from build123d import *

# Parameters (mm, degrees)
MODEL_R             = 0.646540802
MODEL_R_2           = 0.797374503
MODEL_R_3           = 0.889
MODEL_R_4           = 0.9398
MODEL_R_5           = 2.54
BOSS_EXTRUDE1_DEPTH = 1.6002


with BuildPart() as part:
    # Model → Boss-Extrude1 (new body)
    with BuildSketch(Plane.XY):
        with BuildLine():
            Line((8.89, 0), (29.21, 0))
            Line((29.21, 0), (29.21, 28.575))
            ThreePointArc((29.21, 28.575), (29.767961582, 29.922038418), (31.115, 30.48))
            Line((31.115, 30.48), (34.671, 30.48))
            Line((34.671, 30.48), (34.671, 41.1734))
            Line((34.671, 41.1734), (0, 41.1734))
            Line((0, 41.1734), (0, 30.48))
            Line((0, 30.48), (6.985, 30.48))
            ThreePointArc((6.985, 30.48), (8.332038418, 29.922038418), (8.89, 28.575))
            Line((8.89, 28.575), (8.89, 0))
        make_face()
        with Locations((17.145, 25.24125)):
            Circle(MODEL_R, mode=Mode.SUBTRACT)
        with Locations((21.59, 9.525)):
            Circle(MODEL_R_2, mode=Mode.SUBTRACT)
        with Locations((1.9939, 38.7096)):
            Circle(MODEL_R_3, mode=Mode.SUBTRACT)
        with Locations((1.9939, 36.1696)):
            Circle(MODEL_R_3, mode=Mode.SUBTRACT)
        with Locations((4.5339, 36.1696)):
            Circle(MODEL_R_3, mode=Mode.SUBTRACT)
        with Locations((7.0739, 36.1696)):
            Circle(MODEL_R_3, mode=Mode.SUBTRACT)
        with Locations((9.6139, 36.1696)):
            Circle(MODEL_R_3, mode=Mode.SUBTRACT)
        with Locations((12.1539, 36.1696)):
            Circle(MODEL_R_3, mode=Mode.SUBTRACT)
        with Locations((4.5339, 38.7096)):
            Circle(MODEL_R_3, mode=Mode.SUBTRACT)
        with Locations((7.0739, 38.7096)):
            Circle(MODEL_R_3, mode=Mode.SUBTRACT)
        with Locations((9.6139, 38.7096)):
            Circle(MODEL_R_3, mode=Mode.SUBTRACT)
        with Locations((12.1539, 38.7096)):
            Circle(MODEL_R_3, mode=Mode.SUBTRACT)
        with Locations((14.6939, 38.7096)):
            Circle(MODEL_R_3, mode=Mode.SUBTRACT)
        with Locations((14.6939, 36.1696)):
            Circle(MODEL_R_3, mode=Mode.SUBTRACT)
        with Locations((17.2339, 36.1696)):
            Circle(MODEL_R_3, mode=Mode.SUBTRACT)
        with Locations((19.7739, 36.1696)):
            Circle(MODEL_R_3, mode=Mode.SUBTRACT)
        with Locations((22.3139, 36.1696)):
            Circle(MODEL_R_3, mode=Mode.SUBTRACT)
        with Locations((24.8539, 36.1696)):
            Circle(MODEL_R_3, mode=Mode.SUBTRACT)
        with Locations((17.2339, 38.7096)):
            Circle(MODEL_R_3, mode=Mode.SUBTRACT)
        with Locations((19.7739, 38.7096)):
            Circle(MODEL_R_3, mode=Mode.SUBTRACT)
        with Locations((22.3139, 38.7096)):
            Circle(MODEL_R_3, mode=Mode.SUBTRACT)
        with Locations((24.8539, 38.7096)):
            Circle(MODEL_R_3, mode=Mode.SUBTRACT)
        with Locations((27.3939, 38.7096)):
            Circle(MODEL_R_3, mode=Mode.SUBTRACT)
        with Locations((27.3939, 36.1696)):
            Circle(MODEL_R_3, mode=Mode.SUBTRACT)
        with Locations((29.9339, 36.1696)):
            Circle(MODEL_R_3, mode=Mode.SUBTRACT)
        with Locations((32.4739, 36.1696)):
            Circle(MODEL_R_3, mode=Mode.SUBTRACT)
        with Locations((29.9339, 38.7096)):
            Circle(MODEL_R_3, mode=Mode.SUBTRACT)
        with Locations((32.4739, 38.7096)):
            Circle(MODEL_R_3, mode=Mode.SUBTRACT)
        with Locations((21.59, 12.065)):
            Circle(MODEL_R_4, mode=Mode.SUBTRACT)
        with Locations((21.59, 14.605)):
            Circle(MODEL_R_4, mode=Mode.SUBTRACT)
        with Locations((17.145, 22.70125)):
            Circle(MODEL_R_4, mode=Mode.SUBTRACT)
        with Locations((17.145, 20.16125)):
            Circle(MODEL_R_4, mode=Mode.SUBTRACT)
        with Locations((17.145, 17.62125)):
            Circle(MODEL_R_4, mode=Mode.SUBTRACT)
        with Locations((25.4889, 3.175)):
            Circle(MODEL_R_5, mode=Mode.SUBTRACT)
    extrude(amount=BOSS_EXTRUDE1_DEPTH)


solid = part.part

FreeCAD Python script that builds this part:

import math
import FreeCAD as App
import Part
import Sketcher

V = App.Vector
Q = App.Units.Quantity

doc = App.newDocument("Part")
params = doc.addObject("Spreadsheet::Sheet", "Params")
for row, (alias, value) in enumerate([
    ("sketch1_diameter", "0.2 in"),
    ("sketch1_diameter2", "0.07 in"),
    ("sketch1_diameter3", "0.074 in"),
    ("sketch1_width", "0.8 in"),
    ("sketch1_radius", "0.075 in"),
    ("pad1_length", "0.063 in"),
], start=1):
    params.set(f"A{row}", alias)
    params.set(f"B{row}", "=" + value)
    params.setAlias(f"B{row}", alias)

body = doc.addObject("PartDesign::Body", "Body")

# Sketch on XY plane
sketch1 = doc.addObject("Sketcher::SketchObject", "Sketch")
body.addObject(sketch1)
sketch1.AttachmentSupport = (doc.XY_Plane, [""])
sketch1.MapMode = "FlatFace"
sketch1.addGeometry(Part.LineSegment(V(8.9, 0, 0), V(29.2, 0, 0)), False)
sketch1.addGeometry(Part.LineSegment(V(29.2, 0, 0), V(29.2, 28.6, 0)), False)
sketch1.addGeometry(Part.ArcOfCircle(Part.Circle(V(31.1, 28.6, 0), V(0, 0, 1), 1.9), math.radians(90), math.radians(180)), False)
sketch1.addGeometry(Part.LineSegment(V(31.1, 30.5, 0), V(34.7, 30.5, 0)), False)
sketch1.addGeometry(Part.LineSegment(V(34.7, 30.5, 0), V(34.7, 41.2, 0)), False)
sketch1.addGeometry(Part.LineSegment(V(34.7, 41.2, 0), V(0, 41.2, 0)), False)
sketch1.addGeometry(Part.LineSegment(V(0, 41.2, 0), V(0, 30.5, 0)), False)
sketch1.addGeometry(Part.LineSegment(V(0, 30.5, 0), V(7, 30.5, 0)), False)
sketch1.addGeometry(Part.ArcOfCircle(Part.Circle(V(7, 28.6, 0), V(0, 0, 1), 1.9), math.radians(0), math.radians(90)), False)
sketch1.addGeometry(Part.LineSegment(V(8.9, 28.6, 0), V(8.9, 0, 0)), False)
sketch1.addGeometry(Part.Circle(V(17.1, 17.6, 0), V(0, 0, 1), 0.9), False)
sketch1.addGeometry(Part.Circle(V(21.6, 9.5, 0), V(0, 0, 1), 0.8), False)
sketch1.addGeometry(Part.Circle(V(25.5, 3.2, 0), V(0, 0, 1), 2.5), False)
sketch1.addGeometry(Part.Circle(V(21.6, 12.1, 0), V(0, 0, 1), 0.9), False)
sketch1.addGeometry(Part.Circle(V(21.6, 14.6, 0), V(0, 0, 1), 0.9), False)
sketch1.addGeometry(Part.Circle(V(17.1, 20.2, 0), V(0, 0, 1), 0.9), False)
sketch1.addGeometry(Part.Circle(V(17.1, 22.7, 0), V(0, 0, 1), 0.9), False)
sketch1.addGeometry(Part.Circle(V(17.1, 25.2, 0), V(0, 0, 1), 0.6), False)
sketch1.addGeometry(Part.Circle(V(2, 36.2, 0), V(0, 0, 1), 0.9), False)
sketch1.addGeometry(Part.Circle(V(4.5, 36.2, 0), V(0, 0, 1), 0.9), False)
sketch1.addGeometry(Part.Circle(V(2, 38.7, 0), V(0, 0, 1), 0.9), False)
sketch1.addGeometry(Part.Circle(V(4.5, 38.7, 0), V(0, 0, 1), 0.9), False)
sketch1.addGeometry(Part.Circle(V(7.1, 36.2, 0), V(0, 0, 1), 0.9), False)
sketch1.addGeometry(Part.Circle(V(7.1, 38.7, 0), V(0, 0, 1), 0.9), False)
sketch1.addGeometry(Part.Circle(V(9.6, 36.2, 0), V(0, 0, 1), 0.9), False)
sketch1.addGeometry(Part.Circle(V(12.2, 36.2, 0), V(0, 0, 1), 0.9), False)
sketch1.addGeometry(Part.Circle(V(9.6, 38.7, 0), V(0, 0, 1), 0.9), False)
sketch1.addGeometry(Part.Circle(V(12.2, 38.7, 0), V(0, 0, 1), 0.9), False)
sketch1.addGeometry(Part.Circle(V(14.7, 36.2, 0), V(0, 0, 1), 0.9), False)
sketch1.addGeometry(Part.Circle(V(17.2, 36.2, 0), V(0, 0, 1), 0.9), False)
sketch1.addGeometry(Part.Circle(V(14.7, 38.7, 0), V(0, 0, 1), 0.9), False)
sketch1.addGeometry(Part.Circle(V(17.2, 38.7, 0), V(0, 0, 1), 0.9), False)
sketch1.addGeometry(Part.Circle(V(19.8, 36.2, 0), V(0, 0, 1), 0.9), False)
sketch1.addGeometry(Part.Circle(V(19.8, 38.7, 0), V(0, 0, 1), 0.9), False)
sketch1.addGeometry(Part.Circle(V(22.3, 36.2, 0), V(0, 0, 1), 0.9), False)
sketch1.addGeometry(Part.Circle(V(24.9, 36.2, 0), V(0, 0, 1), 0.9), False)
sketch1.addGeometry(Part.Circle(V(22.3, 38.7, 0), V(0, 0, 1), 0.9), False)
sketch1.addGeometry(Part.Circle(V(24.9, 38.7, 0), V(0, 0, 1), 0.9), False)
sketch1.addGeometry(Part.Circle(V(27.4, 36.2, 0), V(0, 0, 1), 0.9), False)
sketch1.addGeometry(Part.Circle(V(27.4, 38.7, 0), V(0, 0, 1), 0.9), False)
sketch1.addGeometry(Part.Circle(V(29.9, 36.2, 0), V(0, 0, 1), 0.9), False)
sketch1.addGeometry(Part.Circle(V(32.5, 36.2, 0), V(0, 0, 1), 0.9), False)
sketch1.addGeometry(Part.Circle(V(29.9, 38.7, 0), V(0, 0, 1), 0.9), False)
sketch1.addGeometry(Part.Circle(V(32.5, 38.7, 0), V(0, 0, 1), 0.9), False)
sketch1.addConstraint(Sketcher.Constraint("Coincident", 0, 2, 1, 1))
sketch1.addConstraint(Sketcher.Constraint("Tangent", 1, 2, 2, 2))
sketch1.addConstraint(Sketcher.Constraint("Tangent", 2, 1, 3, 1))
sketch1.addConstraint(Sketcher.Constraint("Coincident", 3, 2, 4, 1))
sketch1.addConstraint(Sketcher.Constraint("Coincident", 4, 2, 5, 1))
sketch1.addConstraint(Sketcher.Constraint("Coincident", 5, 2, 6, 1))
sketch1.addConstraint(Sketcher.Constraint("Coincident", 6, 2, 7, 1))
sketch1.addConstraint(Sketcher.Constraint("Tangent", 7, 2, 8, 2))
sketch1.addConstraint(Sketcher.Constraint("Tangent", 8, 1, 9, 1))
sketch1.addConstraint(Sketcher.Constraint("Coincident", 9, 2, 0, 1))
sketch1.addConstraint(Sketcher.Constraint("Horizontal", 0))
sketch1.addConstraint(Sketcher.Constraint("Vertical", 1))
sketch1.addConstraint(Sketcher.Constraint("Horizontal", 3))
sketch1.addConstraint(Sketcher.Constraint("Vertical", 4))
sketch1.addConstraint(Sketcher.Constraint("Horizontal", 5))
sketch1.addConstraint(Sketcher.Constraint("Vertical", 6))
sketch1.addConstraint(Sketcher.Constraint("Horizontal", 7))
sketch1.addConstraint(Sketcher.Constraint("Vertical", 9))
sketch1.addConstraint(Sketcher.Constraint("Equal", 2, 8))
sketch1.addConstraint(Sketcher.Constraint("Equal", 10, 13))
sketch1.addConstraint(Sketcher.Constraint("Equal", 13, 14))
sketch1.addConstraint(Sketcher.Constraint("Equal", 14, 15))
sketch1.addConstraint(Sketcher.Constraint("Equal", 15, 16))
sketch1.addConstraint(Sketcher.Constraint("Equal", 18, 19))
sketch1.addConstraint(Sketcher.Constraint("Equal", 19, 20))
sketch1.addConstraint(Sketcher.Constraint("Equal", 20, 21))
sketch1.addConstraint(Sketcher.Constraint("Equal", 21, 22))
sketch1.addConstraint(Sketcher.Constraint("Equal", 22, 23))
sketch1.addConstraint(Sketcher.Constraint("Equal", 23, 24))
sketch1.addConstraint(Sketcher.Constraint("Equal", 24, 25))
sketch1.addConstraint(Sketcher.Constraint("Equal", 25, 26))
sketch1.addConstraint(Sketcher.Constraint("Equal", 26, 27))
sketch1.addConstraint(Sketcher.Constraint("Equal", 27, 28))
sketch1.addConstraint(Sketcher.Constraint("Equal", 28, 29))
sketch1.addConstraint(Sketcher.Constraint("Equal", 29, 30))
sketch1.addConstraint(Sketcher.Constraint("Equal", 30, 31))
sketch1.addConstraint(Sketcher.Constraint("Equal", 31, 32))
sketch1.addConstraint(Sketcher.Constraint("Equal", 32, 33))
sketch1.addConstraint(Sketcher.Constraint("Equal", 33, 34))
sketch1.addConstraint(Sketcher.Constraint("Equal", 34, 35))
sketch1.addConstraint(Sketcher.Constraint("Equal", 35, 36))
sketch1.addConstraint(Sketcher.Constraint("Equal", 36, 37))
sketch1.addConstraint(Sketcher.Constraint("Equal", 37, 38))
sketch1.addConstraint(Sketcher.Constraint("Equal", 38, 39))
sketch1.addConstraint(Sketcher.Constraint("Equal", 39, 40))
sketch1.addConstraint(Sketcher.Constraint("Equal", 40, 41))
sketch1.addConstraint(Sketcher.Constraint("Equal", 41, 42))
sketch1.addConstraint(Sketcher.Constraint("Equal", 42, 43))
sketch1.addConstraint(Sketcher.Constraint("PointOnObject", 0, 2, -1))
sketch1.addConstraint(Sketcher.Constraint("PointOnObject", 5, 2, -2))
sketch1.addConstraint(Sketcher.Constraint("Horizontal", 2, 3, 8, 3))
sketch1.addConstraint(Sketcher.Constraint("Horizontal", 18, 3, 19, 3))
sketch1.addConstraint(Sketcher.Constraint("Horizontal", 20, 3, 21, 3))
sketch1.addConstraint(Sketcher.Constraint("Horizontal", 19, 3, 22, 3))
sketch1.addConstraint(Sketcher.Constraint("Horizontal", 21, 3, 23, 3))
sketch1.addConstraint(Sketcher.Constraint("Horizontal", 22, 3, 24, 3))
sketch1.addConstraint(Sketcher.Constraint("Horizontal", 24, 3, 25, 3))
sketch1.addConstraint(Sketcher.Constraint("Horizontal", 23, 3, 26, 3))
sketch1.addConstraint(Sketcher.Constraint("Horizontal", 26, 3, 27, 3))
sketch1.addConstraint(Sketcher.Constraint("Horizontal", 25, 3, 28, 3))
sketch1.addConstraint(Sketcher.Constraint("Horizontal", 28, 3, 29, 3))
sketch1.addConstraint(Sketcher.Constraint("Horizontal", 27, 3, 30, 3))
sketch1.addConstraint(Sketcher.Constraint("Horizontal", 30, 3, 31, 3))
sketch1.addConstraint(Sketcher.Constraint("Horizontal", 29, 3, 32, 3))
sketch1.addConstraint(Sketcher.Constraint("Horizontal", 31, 3, 33, 3))
sketch1.addConstraint(Sketcher.Constraint("Horizontal", 32, 3, 34, 3))
sketch1.addConstraint(Sketcher.Constraint("Horizontal", 34, 3, 35, 3))
sketch1.addConstraint(Sketcher.Constraint("Horizontal", 33, 3, 36, 3))
sketch1.addConstraint(Sketcher.Constraint("Horizontal", 36, 3, 37, 3))
sketch1.addConstraint(Sketcher.Constraint("Horizontal", 35, 3, 38, 3))
sketch1.addConstraint(Sketcher.Constraint("Horizontal", 37, 3, 39, 3))
sketch1.addConstraint(Sketcher.Constraint("Horizontal", 38, 3, 40, 3))
sketch1.addConstraint(Sketcher.Constraint("Horizontal", 40, 3, 41, 3))
sketch1.addConstraint(Sketcher.Constraint("Horizontal", 39, 3, 42, 3))
sketch1.addConstraint(Sketcher.Constraint("Horizontal", 42, 3, 43, 3))
sketch1.addConstraint(Sketcher.Constraint("Vertical", 11, 3, 13, 3))
sketch1.addConstraint(Sketcher.Constraint("Vertical", 13, 3, 14, 3))
sketch1.addConstraint(Sketcher.Constraint("Vertical", 10, 3, 15, 3))
sketch1.addConstraint(Sketcher.Constraint("Vertical", 15, 3, 16, 3))
sketch1.addConstraint(Sketcher.Constraint("Vertical", 16, 3, 17, 3))
sketch1.addConstraint(Sketcher.Constraint("Vertical", 18, 3, 20, 3))
sketch1.addConstraint(Sketcher.Constraint("Vertical", 19, 3, 21, 3))
sketch1.addConstraint(Sketcher.Constraint("Vertical", 22, 3, 23, 3))
sketch1.addConstraint(Sketcher.Constraint("Vertical", 24, 3, 26, 3))
sketch1.addConstraint(Sketcher.Constraint("Vertical", 25, 3, 27, 3))
sketch1.addConstraint(Sketcher.Constraint("Vertical", 28, 3, 30, 3))
sketch1.addConstraint(Sketcher.Constraint("Vertical", 29, 3, 31, 3))
sketch1.addConstraint(Sketcher.Constraint("Vertical", 32, 3, 33, 3))
sketch1.addConstraint(Sketcher.Constraint("Vertical", 34, 3, 36, 3))
sketch1.addConstraint(Sketcher.Constraint("Vertical", 35, 3, 37, 3))
sketch1.addConstraint(Sketcher.Constraint("Vertical", 38, 3, 39, 3))
sketch1.addConstraint(Sketcher.Constraint("Vertical", 40, 3, 42, 3))
sketch1.addConstraint(Sketcher.Constraint("Vertical", 41, 3, 43, 3))
sketch1.addConstraint(Sketcher.Constraint("Diameter", 12, Q("0.2 in")))
sketch1.addConstraint(Sketcher.Constraint("Diameter", 18, Q("0.07 in")))
sketch1.addConstraint(Sketcher.Constraint("Diameter", 10, Q("0.074 in")))
sketch1.addConstraint(Sketcher.Constraint("DistanceX", 0, 1, 0, 2, Q("0.8 in")))
sketch1.addConstraint(Sketcher.Constraint("Radius", 2, Q("0.075 in")))
sketch1.addConstraint(Sketcher.Constraint("DistanceY", 12, 3, 2, 3, Q("1 in")))
sketch1.addConstraint(Sketcher.Constraint("DistanceX", 3, 1, 3, 2, Q("0.14 in")))
sketch1.addConstraint(Sketcher.Constraint("DistanceY", -1, 1, 2, 1, Q("1.2 in")))
sketch1.addConstraint(Sketcher.Constraint("DistanceX", 8, 3, 10, 3, Q("0.4 in")))
sketch1.addConstraint(Sketcher.Constraint("DistanceY", 11, 3, 13, 3, Q("0.1 in")))
sketch1.addConstraint(Sketcher.Constraint("DistanceY", 13, 3, 14, 3, Q("0.1 in")))
sketch1.addConstraint(Sketcher.Constraint("DistanceY", 10, 3, 15, 3, Q("0.1 in")))
sketch1.addConstraint(Sketcher.Constraint("DistanceY", 15, 3, 16, 3, Q("0.1 in")))
sketch1.addConstraint(Sketcher.Constraint("DistanceY", 16, 3, 17, 3, Q("0.1 in")))
sketch1.addConstraint(Sketcher.Constraint("DistanceX", 18, 3, 19, 3, Q("0.1 in")))
sketch1.addConstraint(Sketcher.Constraint("DistanceY", 18, 3, 20, 3, Q("0.1 in")))
sketch1.addConstraint(Sketcher.Constraint("DistanceX", 19, 3, 22, 3, Q("0.1 in")))
sketch1.addConstraint(Sketcher.Constraint("DistanceX", 22, 3, 24, 3, Q("0.1 in")))
sketch1.addConstraint(Sketcher.Constraint("DistanceX", 24, 3, 25, 3, Q("0.1 in")))
sketch1.addConstraint(Sketcher.Constraint("DistanceX", 25, 3, 28, 3, Q("0.1 in")))
sketch1.addConstraint(Sketcher.Constraint("DistanceX", 28, 3, 29, 3, Q("0.1 in")))
sketch1.addConstraint(Sketcher.Constraint("DistanceX", 29, 3, 32, 3, Q("0.1 in")))
sketch1.addConstraint(Sketcher.Constraint("DistanceX", 32, 3, 34, 3, Q("0.1 in")))
sketch1.addConstraint(Sketcher.Constraint("DistanceX", 34, 3, 35, 3, Q("0.1 in")))
sketch1.addConstraint(Sketcher.Constraint("DistanceX", 35, 3, 38, 3, Q("0.1 in")))
sketch1.addConstraint(Sketcher.Constraint("DistanceX", 38, 3, 40, 3, Q("0.1 in")))
sketch1.addConstraint(Sketcher.Constraint("DistanceX", 40, 3, 41, 3, Q("0.1 in")))
sketch1.addConstraint(Sketcher.Constraint("DistanceX", 11, 3, 0, 2, Q("0.3 in")))
sketch1.addConstraint(Sketcher.Constraint("DistanceX", 5, 2, 5, 1, Q("1.365 in")))
sketch1.addConstraint(Sketcher.Constraint("DistanceY", 4, 1, 4, 2, Q("0.421 in")))
sketch1.addConstraint(Sketcher.Constraint("DistanceY", 11, 3, 2, 3, Q("0.75 in")))
sketch1.addConstraint(Sketcher.Constraint("Diameter", 11, 1.594749))
sketch1.addConstraint(Sketcher.Constraint("Diameter", 17, 1.293082))
sketch1.addConstraint(Sketcher.Constraint("DistanceY", -1, 1, 18, 3, Q("1.424 in")))
sketch1.addConstraint(Sketcher.Constraint("DistanceY", 13, 3, 10, 3, Q("0.21875 in")))
sketch1.addConstraint(Sketcher.Constraint("DistanceX", -1, 1, 12, 3, Q("1.0035 in")))
sketch1.addConstraint(Sketcher.Constraint("DistanceX", -1, 1, 18, 3, Q("0.0785 in")))
sketch1.setExpression("Constraints[93]", "Params.sketch1_diameter")
sketch1.setExpression("Constraints[94]", "Params.sketch1_diameter2")
sketch1.setExpression("Constraints[95]", "Params.sketch1_diameter3")
sketch1.setExpression("Constraints[96]", "Params.sketch1_width")
sketch1.setExpression("Constraints[97]", "Params.sketch1_radius")
pad1 = doc.addObject("PartDesign::Pad", "Pad")
body.addObject(pad1)
pad1.Profile = sketch1
pad1.setExpression("Length", "Params.pad1_length")

doc.recompute()
